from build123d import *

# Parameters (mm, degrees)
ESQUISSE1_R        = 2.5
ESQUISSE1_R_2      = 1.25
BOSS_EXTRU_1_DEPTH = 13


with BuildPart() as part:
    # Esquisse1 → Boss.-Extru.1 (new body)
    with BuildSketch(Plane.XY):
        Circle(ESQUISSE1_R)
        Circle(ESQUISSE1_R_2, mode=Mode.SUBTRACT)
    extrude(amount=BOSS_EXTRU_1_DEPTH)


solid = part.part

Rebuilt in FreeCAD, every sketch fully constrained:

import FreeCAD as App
import Part
import Sketcher
from FreeCAD import Vector

doc = App.newDocument("Part")
body = doc.addObject("PartDesign::Body", "Body")

sketch1 = body.newObject("Sketcher::SketchObject", "Sketch")
sketch1.AttachmentSupport = (doc.getObject("XY_Plane"), [""])
sketch1.MapMode = "FlatFace"
sketch1.addGeometry([
    Part.Circle(Vector(0, 0, 0), Vector(0, 0, 1), 2.5),
    Part.Circle(Vector(0, 0, 0), Vector(0, 0, 1), 1.2),
], False)
sketch1.addConstraint([
    Sketcher.Constraint("Coincident", 0, 3, -1, 1),
    Sketcher.Constraint("Coincident", 1, 3, -1, 1),
    Sketcher.Constraint("Diameter", 0, 5.0),
    Sketcher.Constraint("Diameter", 1, 2.5),
])
pad1 = body.newObject("PartDesign::Pad", "Pad")
pad1.Profile = sketch1
pad1.Length = 13

doc.recompute()
